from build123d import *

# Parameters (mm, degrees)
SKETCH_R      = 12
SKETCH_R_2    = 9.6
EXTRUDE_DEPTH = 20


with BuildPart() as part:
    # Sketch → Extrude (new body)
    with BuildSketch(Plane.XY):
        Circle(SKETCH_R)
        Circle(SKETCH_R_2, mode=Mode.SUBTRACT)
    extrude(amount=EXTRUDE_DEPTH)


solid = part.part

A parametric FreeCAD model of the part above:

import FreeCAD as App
import Part
import Sketcher
Q = App.Units.Quantity

doc = App.newDocument("Part")
params = doc.addObject("Spreadsheet::Sheet", "Params")
for row, (alias, value) in enumerate([
    ("sketch1_diameter", "24 mm"),
    ("sketch1_diameter2", "19.2 mm"),
    ("pad1_length", "20 mm"),
], start=1):
    params.set(f"A{row}", alias)
    params.set(f"B{row}", "=" + value)
    params.setAlias(f"B{row}", alias)

body = doc.addObject("PartDesign::Body", "Body")

# Sketch on XY plane
sketch1 = doc.addObject("Sketcher::SketchObject", "Sketch")
body.addObject(sketch1)
sketch1.AttachmentSupport = (doc.XY_Plane, [""])
sketch1.MapMode = "FlatFace"
sketch1.addGeometry(Part.Circle(App.Vector(0, 0, 0), App.Vector(0, 0, 1), 12), False)
sketch1.addGeometry(Part.Circle(App.Vector(0, 0, 0), App.Vector(0, 0, 1), 9.6), False)
sketch1.addConstraint(Sketcher.Constraint("Coincident", 0, 3, -1, 1))
sketch1.addConstraint(Sketcher.Constraint("Coincident", 1, 3, -1, 1))
sketch1.addConstraint(Sketcher.Constraint("Diameter", 0, Q("24 mm")))
sketch1.addConstraint(Sketcher.Constraint("Diameter", 1, Q("19.2 mm")))
sketch1.setExpression("Constraints[2]", "Params.sketch1_diameter")
sketch1.setExpression("Constraints[3]", "Params.sketch1_diameter2")
pad1 = doc.addObject("PartDesign::Pad", "Pad")
body.addObject(pad1)
pad1.Profile = sketch1
pad1.setExpression("Length", "Params.pad1_length")

doc.recompute()
